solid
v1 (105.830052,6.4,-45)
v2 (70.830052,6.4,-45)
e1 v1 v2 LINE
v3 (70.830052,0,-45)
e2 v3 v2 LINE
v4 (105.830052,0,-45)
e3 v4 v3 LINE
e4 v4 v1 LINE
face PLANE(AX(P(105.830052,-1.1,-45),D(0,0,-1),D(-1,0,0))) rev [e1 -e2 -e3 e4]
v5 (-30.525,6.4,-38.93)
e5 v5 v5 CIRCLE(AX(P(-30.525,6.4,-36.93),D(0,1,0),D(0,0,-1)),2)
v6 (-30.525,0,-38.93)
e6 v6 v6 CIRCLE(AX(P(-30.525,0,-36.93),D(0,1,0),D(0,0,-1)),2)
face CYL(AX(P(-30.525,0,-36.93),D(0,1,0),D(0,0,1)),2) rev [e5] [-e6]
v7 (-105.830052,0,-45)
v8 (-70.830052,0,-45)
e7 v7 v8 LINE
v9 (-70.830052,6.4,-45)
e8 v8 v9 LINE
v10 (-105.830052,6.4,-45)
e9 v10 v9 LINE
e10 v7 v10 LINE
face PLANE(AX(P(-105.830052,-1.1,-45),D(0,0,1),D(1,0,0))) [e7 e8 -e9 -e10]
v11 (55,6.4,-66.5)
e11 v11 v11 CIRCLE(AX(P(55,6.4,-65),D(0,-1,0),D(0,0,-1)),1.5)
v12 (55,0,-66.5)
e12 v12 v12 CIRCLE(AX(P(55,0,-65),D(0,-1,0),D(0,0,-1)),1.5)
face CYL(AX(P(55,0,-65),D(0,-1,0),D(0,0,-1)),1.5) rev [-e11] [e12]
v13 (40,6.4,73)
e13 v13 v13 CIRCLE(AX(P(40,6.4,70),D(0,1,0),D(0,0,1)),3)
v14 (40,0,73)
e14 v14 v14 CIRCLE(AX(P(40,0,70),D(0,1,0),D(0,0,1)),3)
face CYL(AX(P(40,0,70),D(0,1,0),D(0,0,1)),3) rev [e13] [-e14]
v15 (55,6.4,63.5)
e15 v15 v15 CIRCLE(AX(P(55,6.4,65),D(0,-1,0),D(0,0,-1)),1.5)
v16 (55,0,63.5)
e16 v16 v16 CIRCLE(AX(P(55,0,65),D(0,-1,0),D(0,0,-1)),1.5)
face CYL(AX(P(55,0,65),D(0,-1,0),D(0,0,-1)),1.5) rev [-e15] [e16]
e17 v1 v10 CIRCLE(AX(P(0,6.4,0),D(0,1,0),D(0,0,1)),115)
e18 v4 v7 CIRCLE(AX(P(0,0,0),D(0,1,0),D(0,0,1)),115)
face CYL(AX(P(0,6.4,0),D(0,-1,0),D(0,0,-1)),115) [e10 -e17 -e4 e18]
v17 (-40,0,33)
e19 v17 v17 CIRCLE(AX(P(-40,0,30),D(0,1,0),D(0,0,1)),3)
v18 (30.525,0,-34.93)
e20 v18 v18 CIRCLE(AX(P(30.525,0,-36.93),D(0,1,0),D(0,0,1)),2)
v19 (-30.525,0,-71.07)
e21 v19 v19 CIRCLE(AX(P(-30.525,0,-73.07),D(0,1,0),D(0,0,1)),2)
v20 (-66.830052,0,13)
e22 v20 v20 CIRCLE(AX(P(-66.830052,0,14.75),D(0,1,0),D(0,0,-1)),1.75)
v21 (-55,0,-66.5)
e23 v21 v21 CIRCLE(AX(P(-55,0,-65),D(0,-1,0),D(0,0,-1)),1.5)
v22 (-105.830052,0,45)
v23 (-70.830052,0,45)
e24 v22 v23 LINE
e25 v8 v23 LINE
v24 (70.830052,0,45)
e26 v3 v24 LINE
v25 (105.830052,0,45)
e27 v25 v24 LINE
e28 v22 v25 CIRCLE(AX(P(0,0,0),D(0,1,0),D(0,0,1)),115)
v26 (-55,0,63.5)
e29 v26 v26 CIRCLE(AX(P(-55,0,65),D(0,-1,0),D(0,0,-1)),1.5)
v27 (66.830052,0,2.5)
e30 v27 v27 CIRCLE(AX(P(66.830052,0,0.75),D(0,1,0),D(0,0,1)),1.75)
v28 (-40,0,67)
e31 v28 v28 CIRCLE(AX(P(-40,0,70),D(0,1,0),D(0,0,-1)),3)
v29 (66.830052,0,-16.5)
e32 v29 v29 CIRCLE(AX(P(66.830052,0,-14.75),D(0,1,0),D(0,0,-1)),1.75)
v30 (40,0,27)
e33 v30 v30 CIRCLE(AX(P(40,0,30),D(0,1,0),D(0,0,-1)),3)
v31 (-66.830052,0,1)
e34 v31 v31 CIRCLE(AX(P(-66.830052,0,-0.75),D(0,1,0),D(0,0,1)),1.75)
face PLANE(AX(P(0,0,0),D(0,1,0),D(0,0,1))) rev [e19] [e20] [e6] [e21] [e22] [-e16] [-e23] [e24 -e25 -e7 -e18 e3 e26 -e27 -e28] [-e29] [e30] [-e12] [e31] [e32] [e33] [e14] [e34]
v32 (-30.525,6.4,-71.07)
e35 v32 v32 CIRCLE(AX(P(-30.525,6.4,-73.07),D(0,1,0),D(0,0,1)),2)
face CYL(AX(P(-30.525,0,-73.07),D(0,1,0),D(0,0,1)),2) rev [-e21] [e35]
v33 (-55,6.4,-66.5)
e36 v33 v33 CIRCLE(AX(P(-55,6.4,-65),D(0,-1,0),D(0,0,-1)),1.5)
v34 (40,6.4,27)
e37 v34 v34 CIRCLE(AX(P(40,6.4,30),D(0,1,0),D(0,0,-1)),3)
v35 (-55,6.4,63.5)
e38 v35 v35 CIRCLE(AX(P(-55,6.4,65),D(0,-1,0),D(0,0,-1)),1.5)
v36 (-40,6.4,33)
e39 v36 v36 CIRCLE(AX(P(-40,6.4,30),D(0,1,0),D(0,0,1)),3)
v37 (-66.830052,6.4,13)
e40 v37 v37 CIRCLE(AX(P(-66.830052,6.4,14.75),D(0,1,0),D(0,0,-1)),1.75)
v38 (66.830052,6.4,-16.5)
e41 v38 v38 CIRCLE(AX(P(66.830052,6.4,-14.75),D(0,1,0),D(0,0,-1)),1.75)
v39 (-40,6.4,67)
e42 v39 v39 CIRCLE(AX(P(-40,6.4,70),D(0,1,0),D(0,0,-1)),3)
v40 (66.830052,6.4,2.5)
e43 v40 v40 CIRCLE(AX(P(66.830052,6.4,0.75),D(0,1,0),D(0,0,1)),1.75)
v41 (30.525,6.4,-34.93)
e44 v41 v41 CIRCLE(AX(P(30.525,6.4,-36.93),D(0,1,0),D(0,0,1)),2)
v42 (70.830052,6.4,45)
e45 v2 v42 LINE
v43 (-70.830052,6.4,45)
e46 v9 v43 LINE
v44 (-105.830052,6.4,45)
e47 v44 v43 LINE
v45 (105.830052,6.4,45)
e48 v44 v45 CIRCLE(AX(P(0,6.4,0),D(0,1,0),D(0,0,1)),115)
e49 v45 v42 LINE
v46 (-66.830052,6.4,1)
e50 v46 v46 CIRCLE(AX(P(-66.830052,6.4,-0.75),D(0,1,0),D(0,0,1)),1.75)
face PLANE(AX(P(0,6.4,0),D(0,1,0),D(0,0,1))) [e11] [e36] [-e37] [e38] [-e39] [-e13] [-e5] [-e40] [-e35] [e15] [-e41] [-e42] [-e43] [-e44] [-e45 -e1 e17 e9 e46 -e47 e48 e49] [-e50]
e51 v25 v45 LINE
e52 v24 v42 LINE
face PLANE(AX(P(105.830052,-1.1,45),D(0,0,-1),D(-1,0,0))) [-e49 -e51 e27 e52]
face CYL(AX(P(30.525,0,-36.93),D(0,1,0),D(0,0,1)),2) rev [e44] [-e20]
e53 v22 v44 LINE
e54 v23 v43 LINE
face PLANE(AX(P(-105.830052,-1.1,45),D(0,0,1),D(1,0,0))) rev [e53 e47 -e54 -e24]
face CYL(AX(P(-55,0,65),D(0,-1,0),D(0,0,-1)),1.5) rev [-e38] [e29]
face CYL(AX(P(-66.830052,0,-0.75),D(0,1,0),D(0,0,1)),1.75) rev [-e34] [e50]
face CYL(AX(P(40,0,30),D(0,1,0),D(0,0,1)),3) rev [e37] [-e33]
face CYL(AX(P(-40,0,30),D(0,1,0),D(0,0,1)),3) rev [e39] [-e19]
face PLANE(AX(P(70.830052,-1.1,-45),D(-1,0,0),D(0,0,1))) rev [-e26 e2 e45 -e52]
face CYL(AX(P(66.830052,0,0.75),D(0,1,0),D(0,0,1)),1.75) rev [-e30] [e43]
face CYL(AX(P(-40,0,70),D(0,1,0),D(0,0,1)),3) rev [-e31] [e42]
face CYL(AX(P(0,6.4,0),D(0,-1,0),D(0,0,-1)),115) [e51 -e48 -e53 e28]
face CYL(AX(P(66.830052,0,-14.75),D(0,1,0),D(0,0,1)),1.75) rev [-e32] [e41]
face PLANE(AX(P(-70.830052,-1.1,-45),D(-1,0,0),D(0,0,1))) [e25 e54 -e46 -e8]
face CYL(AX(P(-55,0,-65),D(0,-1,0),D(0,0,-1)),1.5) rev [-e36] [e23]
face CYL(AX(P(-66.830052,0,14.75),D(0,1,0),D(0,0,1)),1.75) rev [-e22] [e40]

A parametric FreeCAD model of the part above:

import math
import FreeCAD as App
import Part
import Sketcher
Q = App.Units.Quantity

doc = App.newDocument("Part")
body = doc.addObject("PartDesign::Body", "Body")

# Sketch on XZ plane
sketch1 = body.newObject("Sketcher::SketchObject", "Sketch")
sketch1.AttachmentSupport = (doc.getObject("XZ_Plane"), [""])
sketch1.MapMode = "FlatFace"
sketch1.addGeometry(Part.Circle(App.Vector(0, 0, 0), App.Vector(0, 0, 1), 115), False)
sketch1.addConstraint([
    Sketcher.Constraint("Coincident", 0, 3, -1, 1),
    Sketcher.Constraint("Diameter", 0, Q("230 mm")),
])
pad1 = body.newObject("PartDesign::Pad", "Pad")
pad1.Profile = sketch1
pad1.Length = 6.4
pad1.Reversed = True

# Sketch on XZ plane
sketch2 = body.newObject("Sketcher::SketchObject", "Sketch001")
sketch2.AttachmentSupport = (doc.getObject("XZ_Plane"), [""])
sketch2.MapMode = "FlatFace"
sketch2.AttachmentOffset = App.Placement(App.Vector(0, 0, -6.4), App.Rotation())
sketch2.addGeometry([
    Part.LineSegment(App.Vector(-71, -45, 0), App.Vector(-106, -45, 0)),  # 0
    Part.ArcOfCircle(Part.Circle(App.Vector(0, 0, 0), App.Vector(0, 0, 1), 115), math.radians(157), math.radians(203)),  # 1
    Part.LineSegment(App.Vector(-106, 45, 0), App.Vector(-71, 45, 0)),  # 2
    Part.LineSegment(App.Vector(-71, 45, 0), App.Vector(-71, -45, 0)),  # 3
    Part.LineSegment(App.Vector(71, 45, 0), App.Vector(106, 45, 0)),  # 4
    Part.ArcOfCircle(Part.Circle(App.Vector(0, 0, 0), App.Vector(0, 0, 1), 115), math.radians(-23), math.radians(23)),  # 5
    Part.LineSegment(App.Vector(106, -45, 0), App.Vector(71, -45, 0)),  # 6
    Part.LineSegment(App.Vector(71, -45, 0), App.Vector(71, 45, 0)),  # 7
], False)
sketch2.addConstraint([
    Sketcher.Constraint("Coincident", 0, 2, 1, 2),
    Sketcher.Constraint("Coincident", 1, 1, 2, 1),
    Sketcher.Constraint("Coincident", 2, 2, 3, 1),
    Sketcher.Constraint("Coincident", 3, 2, 0, 1),
    Sketcher.Constraint("Coincident", 4, 2, 5, 2),
    Sketcher.Constraint("Coincident", 5, 1, 6, 1),
    Sketcher.Constraint("Coincident", 6, 2, 7, 1),
    Sketcher.Constraint("Coincident", 7, 2, 4, 1),
    Sketcher.Constraint("Horizontal", 0),
    Sketcher.Constraint("Horizontal", 2),
    Sketcher.Constraint("Vertical", 3),
    Sketcher.Constraint("Horizontal", 4),
    Sketcher.Constraint("Horizontal", 6),
    Sketcher.Constraint("Vertical", 7),
    Sketcher.Constraint("Coincident", 1, 3, -1, 1),
    Sketcher.Constraint("Coincident", 5, 3, -1, 1),
    Sketcher.Constraint("Equal", 1, 5),
    Sketcher.Constraint("Symmetric", 2, 2, 6, 2, -1, 1),
    Sketcher.Constraint("Horizontal", 2, 2, 4, 2),
    Sketcher.Constraint("Horizontal", 3, 2, 5, 1),
    Sketcher.Constraint("Radius", 1, Q("115 mm")),
    Sketcher.Constraint("DistanceX", 0, 2, 0, 1, Q("35 mm")),
    Sketcher.Constraint("DistanceY", 3, 2, 3, 1, Q("90 mm")),
])
pocket1 = body.newObject("PartDesign::Pocket", "Pocket")
pocket1.Profile = sketch2
pocket1.Length = 7.5
pocket1.Reversed = True

# Sketch on XZ plane
sketch3 = body.newObject("Sketcher::SketchObject", "Sketch002")
sketch3.AttachmentSupport = (doc.getObject("XZ_Plane"), [""])
sketch3.MapMode = "FlatFace"
sketch3.AttachmentOffset = App.Placement(App.Vector(0, 0, -6.4), App.Rotation())
sketch3.addGeometry([
    Part.Circle(App.Vector(-66.8, -0.8, 0), App.Vector(0, 0, 1), 1.8),
    Part.Circle(App.Vector(-66.8, 14.8, 0), App.Vector(0, 0, 1), 1.8),
    Part.Circle(App.Vector(66.8, 0.8, 0), App.Vector(0, 0, 1), 1.8),
    Part.Circle(App.Vector(66.8, -14.8, 0), App.Vector(0, 0, 1), 1.8),
], False)
sketch3.addConstraint([
    Sketcher.Constraint("Equal", 0, 1),
    Sketcher.Constraint("Equal", 1, 2),
    Sketcher.Constraint("Equal", 2, 3),
    Sketcher.Constraint("Symmetric", 0, 3, 2, 3, -1, 1),
    Sketcher.Constraint("Symmetric", 1, 3, 3, 3, -1, 1),
    Sketcher.Constraint("Vertical", 0, 3, 1, 3),
    Sketcher.Constraint("Diameter", 0, Q("3.5 mm")),
    Sketcher.Constraint("DistanceY", 2, 3, 1, 3, Q("14 mm")),
    Sketcher.Constraint("DistanceY", 0, 3, 1, 3, Q("15.5 mm")),
    Sketcher.Constraint("DistanceX", 0, 3, -1, 1, Q("66.830052 mm")),
])
pocket2 = body.newObject("PartDesign::Pocket", "Pocket001")
pocket2.Profile = sketch3
pocket2.Type = "ThroughAll"
pocket2.Reversed = True

# Sketch on XZ plane
sketch4 = body.newObject("Sketcher::SketchObject", "Sketch003")
sketch4.AttachmentSupport = (doc.getObject("XZ_Plane"), [""])
sketch4.MapMode = "FlatFace"
sketch4.AttachmentOffset = App.Placement(App.Vector(0, 0, -6.4), App.Rotation())
sketch4.addGeometry([
    Part.Circle(App.Vector(30.5, -36.9, 0), App.Vector(0, 0, 1), 2),
    Part.Circle(App.Vector(-30.5, -36.9, 0), App.Vector(0, 0, 1), 2),
    Part.Circle(App.Vector(-30.5, -73.1, 0), App.Vector(0, 0, 1), 2),
], False)
sketch4.addConstraint([
    Sketcher.Constraint("Equal", 0, 1),
    Sketcher.Constraint("Equal", 1, 2),
    Sketcher.Constraint("Symmetric", 0, 3, 1, 3, -2),
    Sketcher.Constraint("Vertical", 1, 3, 2, 3),
    Sketcher.Constraint("Diameter", 0, Q("4 mm")),
    Sketcher.Constraint("DistanceY", 0, 3, -1, 1, Q("36.93 mm")),
    Sketcher.Constraint("DistanceY", 2, 3, -1, 1, Q("73.07 mm")),
    Sketcher.Constraint("DistanceX", 1, 3, 0, 3, Q("61.05 mm")),
])
pocket3 = body.newObject("PartDesign::Pocket", "Pocket002")
pocket3.Profile = sketch4
pocket3.Type = "ThroughAll"
pocket3.Reversed = True

# Sketch on XZ plane
sketch5 = body.newObject("Sketcher::SketchObject", "Sketch004")
sketch5.AttachmentSupport = (doc.getObject("XZ_Plane"), [""])
sketch5.MapMode = "FlatFace"
sketch5.AttachmentOffset = App.Placement(App.Vector(0, 0, -6.4), App.Rotation())
sketch5.addGeometry([
    Part.Circle(App.Vector(-40, 30, 0), App.Vector(0, 0, 1), 3),
    Part.Circle(App.Vector(40, 30, 0), App.Vector(0, 0, 1), 3),
    Part.Circle(App.Vector(40, 70, 0), App.Vector(0, 0, 1), 3),
    Part.Circle(App.Vector(-40, 70, 0), App.Vector(0, 0, 1), 3),
], False)
sketch5.addConstraint([
    Sketcher.Constraint("Equal", 0, 1),
    Sketcher.Constraint("Equal", 1, 2),
    Sketcher.Constraint("Equal", 2, 3),
    Sketcher.Constraint("Symmetric", 0, 3, 1, 3, -2),
    Sketcher.Constraint("Symmetric", 2, 3, 3, 3, -2),
    Sketcher.Constraint("Vertical", 1, 3, 2, 3),
    Sketcher.Constraint("Diameter", 0, Q("6 mm")),
    Sketcher.Constraint("DistanceX", 0, 3, -1, 1, Q("40 mm")),
    Sketcher.Constraint("DistanceY", -1, 1, 0, 3, Q("30 mm")),
    Sketcher.Constraint("DistanceY", -1, 1, 2, 3, Q("70 mm")),
])
pocket4 = body.newObject("PartDesign::Pocket", "Pocket003")
pocket4.Profile = sketch5
pocket4.Type = "ThroughAll"
pocket4.Reversed = True

# Sketch on XZ plane
sketch6 = body.newObject("Sketcher::SketchObject", "Sketch005")
sketch6.AttachmentSupport = (doc.getObject("XZ_Plane"), [""])
sketch6.MapMode = "FlatFace"
sketch6.addGeometry([
    Part.Circle(App.Vector(55, -65, 0), App.Vector(0, 0, 1), 1.5),
    Part.Circle(App.Vector(-55, -65, 0), App.Vector(0, 0, 1), 1.5),
    Part.Circle(App.Vector(-55, 65, 0), App.Vector(0, 0, 1), 1.5),
    Part.Circle(App.Vector(55, 65, 0), App.Vector(0, 0, 1), 1.5),
], False)
sketch6.addConstraint([
    Sketcher.Constraint("Equal", 0, 1),
    Sketcher.Constraint("Equal", 1, 2),
    Sketcher.Constraint("Equal", 2, 3),
    Sketcher.Constraint("Symmetric", 0, 3, 2, 3, -1, 1),
    Sketcher.Constraint("Symmetric", 1, 3, 3, 3, -1, 1),
    Sketcher.Constraint("Symmetric", 0, 3, 1, 3, -2),
    Sketcher.Constraint("Diameter", 0, Q("3 mm")),
    Sketcher.Constraint("DistanceX", -1, 1, 0, 3, Q("55 mm")),
    Sketcher.Constraint("DistanceY", 0, 3, -1, 1, Q("65 mm")),
])
doc.recompute()
hole = body.newObject("PartDesign::Hole", "Hole")
hole.Profile = sketch6
hole.ThreadType = "None"
hole.Diameter = 3
hole.DepthType = "ThroughAll"

doc.recompute()
